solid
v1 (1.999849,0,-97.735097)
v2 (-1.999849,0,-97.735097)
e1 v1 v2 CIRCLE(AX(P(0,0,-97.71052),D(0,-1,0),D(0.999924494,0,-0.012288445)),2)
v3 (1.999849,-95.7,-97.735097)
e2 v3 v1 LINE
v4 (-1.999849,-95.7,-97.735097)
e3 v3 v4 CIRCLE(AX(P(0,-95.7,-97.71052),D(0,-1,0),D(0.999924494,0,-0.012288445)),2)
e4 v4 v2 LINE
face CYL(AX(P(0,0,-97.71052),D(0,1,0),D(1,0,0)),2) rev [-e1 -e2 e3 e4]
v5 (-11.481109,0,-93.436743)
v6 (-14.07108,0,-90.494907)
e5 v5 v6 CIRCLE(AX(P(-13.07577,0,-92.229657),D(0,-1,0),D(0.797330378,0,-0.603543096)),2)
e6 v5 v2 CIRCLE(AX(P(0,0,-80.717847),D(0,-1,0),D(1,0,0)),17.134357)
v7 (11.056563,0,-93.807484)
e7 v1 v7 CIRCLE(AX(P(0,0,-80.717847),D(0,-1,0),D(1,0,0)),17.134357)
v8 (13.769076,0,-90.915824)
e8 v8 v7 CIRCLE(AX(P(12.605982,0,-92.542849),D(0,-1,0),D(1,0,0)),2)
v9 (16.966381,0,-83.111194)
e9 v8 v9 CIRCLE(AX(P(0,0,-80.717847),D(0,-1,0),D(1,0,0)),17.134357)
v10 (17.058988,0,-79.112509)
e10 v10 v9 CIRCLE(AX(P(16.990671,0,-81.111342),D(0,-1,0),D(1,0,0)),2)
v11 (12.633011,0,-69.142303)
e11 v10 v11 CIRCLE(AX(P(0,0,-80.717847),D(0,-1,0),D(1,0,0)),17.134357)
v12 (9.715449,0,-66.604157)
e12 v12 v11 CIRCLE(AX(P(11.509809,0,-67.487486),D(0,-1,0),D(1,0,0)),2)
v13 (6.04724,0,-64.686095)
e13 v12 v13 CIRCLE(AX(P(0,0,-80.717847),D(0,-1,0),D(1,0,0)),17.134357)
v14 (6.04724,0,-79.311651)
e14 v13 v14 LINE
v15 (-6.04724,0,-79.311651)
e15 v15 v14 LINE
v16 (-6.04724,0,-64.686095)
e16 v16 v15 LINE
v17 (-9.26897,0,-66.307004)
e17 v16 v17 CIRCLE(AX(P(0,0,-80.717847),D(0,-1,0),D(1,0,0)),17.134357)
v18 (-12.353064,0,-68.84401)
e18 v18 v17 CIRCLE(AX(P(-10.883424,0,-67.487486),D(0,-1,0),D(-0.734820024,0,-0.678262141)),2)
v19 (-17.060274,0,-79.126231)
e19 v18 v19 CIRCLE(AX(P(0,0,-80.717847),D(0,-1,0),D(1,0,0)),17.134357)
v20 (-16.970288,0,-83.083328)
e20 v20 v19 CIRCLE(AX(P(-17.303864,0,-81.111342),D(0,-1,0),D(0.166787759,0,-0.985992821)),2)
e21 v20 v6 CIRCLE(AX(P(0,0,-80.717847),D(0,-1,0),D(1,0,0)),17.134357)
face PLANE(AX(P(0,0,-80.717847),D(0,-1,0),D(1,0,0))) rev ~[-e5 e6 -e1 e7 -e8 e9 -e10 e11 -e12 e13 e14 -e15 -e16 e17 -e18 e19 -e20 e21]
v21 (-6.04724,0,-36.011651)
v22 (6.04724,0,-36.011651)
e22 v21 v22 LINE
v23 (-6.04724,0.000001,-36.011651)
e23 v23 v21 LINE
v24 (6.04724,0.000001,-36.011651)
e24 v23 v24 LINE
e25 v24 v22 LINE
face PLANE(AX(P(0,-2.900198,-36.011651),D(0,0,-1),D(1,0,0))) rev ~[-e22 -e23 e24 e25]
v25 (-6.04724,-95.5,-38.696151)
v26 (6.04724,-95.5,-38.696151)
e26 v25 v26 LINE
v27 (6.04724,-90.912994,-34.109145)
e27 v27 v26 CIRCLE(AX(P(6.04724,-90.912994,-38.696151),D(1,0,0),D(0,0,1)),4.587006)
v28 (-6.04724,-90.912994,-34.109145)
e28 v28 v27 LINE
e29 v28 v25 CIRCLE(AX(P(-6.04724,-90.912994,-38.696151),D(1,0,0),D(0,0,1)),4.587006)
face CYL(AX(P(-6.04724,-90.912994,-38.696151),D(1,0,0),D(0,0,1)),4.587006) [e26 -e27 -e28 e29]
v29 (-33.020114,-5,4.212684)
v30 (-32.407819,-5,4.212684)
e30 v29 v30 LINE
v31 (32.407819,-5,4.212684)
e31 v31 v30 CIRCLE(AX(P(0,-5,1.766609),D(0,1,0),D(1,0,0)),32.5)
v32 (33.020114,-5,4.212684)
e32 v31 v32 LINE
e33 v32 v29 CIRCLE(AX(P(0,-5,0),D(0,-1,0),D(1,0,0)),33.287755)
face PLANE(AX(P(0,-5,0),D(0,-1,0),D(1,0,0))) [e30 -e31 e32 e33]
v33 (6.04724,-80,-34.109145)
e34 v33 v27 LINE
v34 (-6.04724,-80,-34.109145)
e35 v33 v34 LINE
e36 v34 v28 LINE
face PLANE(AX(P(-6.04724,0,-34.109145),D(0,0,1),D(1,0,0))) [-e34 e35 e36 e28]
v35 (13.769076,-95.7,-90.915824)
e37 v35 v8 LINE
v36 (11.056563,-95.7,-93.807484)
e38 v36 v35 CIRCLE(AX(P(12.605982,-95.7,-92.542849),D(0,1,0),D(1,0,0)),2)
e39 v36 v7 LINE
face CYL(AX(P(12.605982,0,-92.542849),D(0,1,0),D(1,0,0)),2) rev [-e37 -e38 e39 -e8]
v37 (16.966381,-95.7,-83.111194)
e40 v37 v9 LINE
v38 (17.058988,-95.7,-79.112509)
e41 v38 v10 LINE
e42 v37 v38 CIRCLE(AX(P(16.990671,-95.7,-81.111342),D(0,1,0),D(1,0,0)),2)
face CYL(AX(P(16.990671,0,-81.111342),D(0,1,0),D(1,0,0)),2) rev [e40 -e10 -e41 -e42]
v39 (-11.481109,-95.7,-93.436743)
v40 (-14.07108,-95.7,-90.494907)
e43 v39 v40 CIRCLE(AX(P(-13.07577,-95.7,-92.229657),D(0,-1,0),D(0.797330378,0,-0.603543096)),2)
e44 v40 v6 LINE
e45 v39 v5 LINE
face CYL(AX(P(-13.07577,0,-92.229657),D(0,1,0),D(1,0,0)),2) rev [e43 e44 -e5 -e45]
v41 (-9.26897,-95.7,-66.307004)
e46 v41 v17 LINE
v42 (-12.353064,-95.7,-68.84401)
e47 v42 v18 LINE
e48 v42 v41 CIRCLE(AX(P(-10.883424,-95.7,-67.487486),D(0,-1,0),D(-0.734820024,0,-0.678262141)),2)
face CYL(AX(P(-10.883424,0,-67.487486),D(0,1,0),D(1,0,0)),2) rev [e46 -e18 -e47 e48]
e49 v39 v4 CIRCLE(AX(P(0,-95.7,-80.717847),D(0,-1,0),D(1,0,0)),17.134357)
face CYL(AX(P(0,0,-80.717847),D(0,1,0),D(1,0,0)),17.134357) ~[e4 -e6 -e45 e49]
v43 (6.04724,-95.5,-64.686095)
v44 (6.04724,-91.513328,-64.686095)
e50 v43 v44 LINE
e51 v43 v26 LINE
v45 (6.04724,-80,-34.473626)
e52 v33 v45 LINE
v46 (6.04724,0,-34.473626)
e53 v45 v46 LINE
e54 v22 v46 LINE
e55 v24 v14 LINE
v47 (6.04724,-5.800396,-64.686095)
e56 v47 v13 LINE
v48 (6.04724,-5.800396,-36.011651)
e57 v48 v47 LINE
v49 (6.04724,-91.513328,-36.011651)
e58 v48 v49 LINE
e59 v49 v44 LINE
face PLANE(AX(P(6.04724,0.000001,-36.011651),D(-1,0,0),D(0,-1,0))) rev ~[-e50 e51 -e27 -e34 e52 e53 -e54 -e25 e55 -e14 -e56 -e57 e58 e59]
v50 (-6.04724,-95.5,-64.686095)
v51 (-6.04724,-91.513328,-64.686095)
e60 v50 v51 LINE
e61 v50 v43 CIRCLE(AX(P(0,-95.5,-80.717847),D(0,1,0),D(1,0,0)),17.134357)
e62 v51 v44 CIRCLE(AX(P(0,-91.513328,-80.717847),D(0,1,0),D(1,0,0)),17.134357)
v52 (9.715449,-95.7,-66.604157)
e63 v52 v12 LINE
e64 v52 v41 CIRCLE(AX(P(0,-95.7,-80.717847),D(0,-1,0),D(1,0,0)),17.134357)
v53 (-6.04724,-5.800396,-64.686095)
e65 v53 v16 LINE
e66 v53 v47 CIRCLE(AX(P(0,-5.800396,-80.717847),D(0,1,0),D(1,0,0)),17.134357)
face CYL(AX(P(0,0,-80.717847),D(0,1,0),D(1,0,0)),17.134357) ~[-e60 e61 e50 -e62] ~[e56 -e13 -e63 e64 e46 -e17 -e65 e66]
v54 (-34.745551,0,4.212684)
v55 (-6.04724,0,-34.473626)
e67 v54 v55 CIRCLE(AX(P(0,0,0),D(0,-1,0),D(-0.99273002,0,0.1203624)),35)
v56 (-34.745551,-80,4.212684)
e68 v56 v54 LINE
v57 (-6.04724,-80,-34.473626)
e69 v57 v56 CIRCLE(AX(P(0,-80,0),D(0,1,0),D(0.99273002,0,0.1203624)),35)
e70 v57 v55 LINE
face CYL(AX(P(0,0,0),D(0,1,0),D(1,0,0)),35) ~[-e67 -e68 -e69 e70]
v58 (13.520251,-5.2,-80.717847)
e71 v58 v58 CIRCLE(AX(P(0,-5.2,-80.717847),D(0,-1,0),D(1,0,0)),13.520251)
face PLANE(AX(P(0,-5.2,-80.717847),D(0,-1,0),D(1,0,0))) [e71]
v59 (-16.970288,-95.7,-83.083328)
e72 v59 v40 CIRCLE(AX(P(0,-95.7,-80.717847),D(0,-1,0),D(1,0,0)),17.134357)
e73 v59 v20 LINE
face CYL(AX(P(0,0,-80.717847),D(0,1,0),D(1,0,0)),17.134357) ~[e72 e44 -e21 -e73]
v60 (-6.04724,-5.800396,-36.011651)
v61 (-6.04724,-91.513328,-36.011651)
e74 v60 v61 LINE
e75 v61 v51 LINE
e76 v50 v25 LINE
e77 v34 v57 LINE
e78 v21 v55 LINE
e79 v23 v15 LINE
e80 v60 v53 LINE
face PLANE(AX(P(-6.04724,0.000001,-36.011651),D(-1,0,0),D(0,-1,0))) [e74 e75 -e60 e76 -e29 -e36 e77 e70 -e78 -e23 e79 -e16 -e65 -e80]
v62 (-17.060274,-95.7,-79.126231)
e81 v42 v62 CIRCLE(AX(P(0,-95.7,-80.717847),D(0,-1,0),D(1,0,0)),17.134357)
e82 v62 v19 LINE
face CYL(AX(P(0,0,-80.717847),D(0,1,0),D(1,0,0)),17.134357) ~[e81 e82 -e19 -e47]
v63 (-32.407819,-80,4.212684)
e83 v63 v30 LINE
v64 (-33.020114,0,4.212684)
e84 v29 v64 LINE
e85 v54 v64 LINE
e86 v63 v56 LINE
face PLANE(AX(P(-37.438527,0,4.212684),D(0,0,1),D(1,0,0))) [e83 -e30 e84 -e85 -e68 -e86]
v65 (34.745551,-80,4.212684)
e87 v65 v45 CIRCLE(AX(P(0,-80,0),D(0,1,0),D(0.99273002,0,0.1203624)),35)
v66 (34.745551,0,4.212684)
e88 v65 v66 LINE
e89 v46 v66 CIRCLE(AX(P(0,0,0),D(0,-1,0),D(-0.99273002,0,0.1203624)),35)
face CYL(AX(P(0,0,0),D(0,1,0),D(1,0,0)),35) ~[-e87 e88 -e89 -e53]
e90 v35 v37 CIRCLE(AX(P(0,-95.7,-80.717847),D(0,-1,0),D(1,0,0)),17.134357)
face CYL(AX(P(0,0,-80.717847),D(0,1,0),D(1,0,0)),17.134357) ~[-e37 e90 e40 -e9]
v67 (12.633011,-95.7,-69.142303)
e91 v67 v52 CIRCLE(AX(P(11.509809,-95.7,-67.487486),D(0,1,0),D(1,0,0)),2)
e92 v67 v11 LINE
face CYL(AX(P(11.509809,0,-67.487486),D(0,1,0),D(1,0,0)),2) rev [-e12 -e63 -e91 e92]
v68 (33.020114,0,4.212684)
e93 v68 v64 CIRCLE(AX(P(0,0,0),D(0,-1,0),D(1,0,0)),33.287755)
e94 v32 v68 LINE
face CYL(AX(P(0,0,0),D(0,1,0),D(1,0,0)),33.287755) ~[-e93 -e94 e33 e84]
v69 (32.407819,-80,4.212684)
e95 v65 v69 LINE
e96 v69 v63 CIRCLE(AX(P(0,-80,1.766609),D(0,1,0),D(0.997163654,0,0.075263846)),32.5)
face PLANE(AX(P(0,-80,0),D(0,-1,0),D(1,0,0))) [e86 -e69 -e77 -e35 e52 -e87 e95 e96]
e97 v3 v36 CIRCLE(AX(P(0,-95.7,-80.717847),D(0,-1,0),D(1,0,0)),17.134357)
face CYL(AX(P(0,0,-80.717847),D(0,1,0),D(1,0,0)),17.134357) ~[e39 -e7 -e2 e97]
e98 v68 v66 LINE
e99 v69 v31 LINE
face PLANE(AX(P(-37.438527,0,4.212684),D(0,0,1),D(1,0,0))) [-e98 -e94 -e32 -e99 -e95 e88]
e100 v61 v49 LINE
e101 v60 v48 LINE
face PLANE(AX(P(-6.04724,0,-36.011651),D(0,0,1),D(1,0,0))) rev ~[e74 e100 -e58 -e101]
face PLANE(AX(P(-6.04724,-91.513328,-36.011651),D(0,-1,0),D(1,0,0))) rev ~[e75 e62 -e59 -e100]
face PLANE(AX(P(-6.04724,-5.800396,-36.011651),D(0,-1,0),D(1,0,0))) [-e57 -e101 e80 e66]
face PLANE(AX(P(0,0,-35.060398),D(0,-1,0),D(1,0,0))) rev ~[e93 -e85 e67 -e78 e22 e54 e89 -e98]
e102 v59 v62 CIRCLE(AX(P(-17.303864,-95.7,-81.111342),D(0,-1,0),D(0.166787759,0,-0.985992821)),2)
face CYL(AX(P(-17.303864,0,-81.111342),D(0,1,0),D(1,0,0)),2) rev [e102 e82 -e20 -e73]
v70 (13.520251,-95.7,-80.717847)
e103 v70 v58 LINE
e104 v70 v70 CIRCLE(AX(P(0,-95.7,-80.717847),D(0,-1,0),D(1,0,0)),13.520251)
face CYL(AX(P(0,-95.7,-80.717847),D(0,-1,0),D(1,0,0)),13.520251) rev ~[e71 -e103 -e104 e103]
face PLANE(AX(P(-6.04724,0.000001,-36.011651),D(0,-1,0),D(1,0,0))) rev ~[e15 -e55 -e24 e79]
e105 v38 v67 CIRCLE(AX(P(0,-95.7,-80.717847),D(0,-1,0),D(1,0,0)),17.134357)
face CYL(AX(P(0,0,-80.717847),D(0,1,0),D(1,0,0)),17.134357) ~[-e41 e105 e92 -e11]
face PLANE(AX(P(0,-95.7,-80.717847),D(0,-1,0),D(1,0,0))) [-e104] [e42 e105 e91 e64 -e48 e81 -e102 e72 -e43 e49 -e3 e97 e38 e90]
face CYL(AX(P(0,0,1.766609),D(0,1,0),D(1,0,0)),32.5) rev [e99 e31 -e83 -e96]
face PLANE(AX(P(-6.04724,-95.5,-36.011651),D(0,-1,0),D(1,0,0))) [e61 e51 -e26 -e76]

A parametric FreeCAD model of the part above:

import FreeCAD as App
import Part
import Sketcher

V = App.Vector


def edges_at(feature, points):
    """Names of the edges that pass closest to the given points."""
    edges = feature.Shape.Edges
    near = lambda p: min(range(len(edges)), key=lambda i: edges[i].distToShape(Part.Vertex(*p))[0])
    return sorted({f"Edge{near(p) + 1}" for p in points})

doc = App.newDocument("Part")
body = doc.addObject("PartDesign::Body", "Body")

# Sketch on XZ plane
sketch1 = body.newObject("Sketcher::SketchObject", "Sketch")
sketch1.AttachmentSupport = (doc.getObject("XZ_Plane"), [""])
sketch1.MapMode = "FlatFace"
sketch1.addGeometry(Part.Circle(V(0, 0, 0), V(0, 0, 1), 35), False)
sketch1.addConstraint([
    Sketcher.Constraint("Coincident", 0, 3, -1, 1),
    Sketcher.Constraint("Diameter", 0, 70.0),
])
pad1 = body.newObject("PartDesign::Pad", "Pad")
pad1.Profile = sketch1
pad1.Length = 80

# Sketch on XZ plane
sketch2 = body.newObject("Sketcher::SketchObject", "Sketch001")
sketch2.AttachmentSupport = (doc.getObject("XZ_Plane"), [""])
sketch2.MapMode = "FlatFace"
sketch2.addGeometry(Part.Circle(V(0, 2, 0), V(0, 0, 1), 32), False)
sketch2.addConstraint([
    Sketcher.Constraint("PointOnObject", 0, 3, -2),
    Sketcher.Constraint("Diameter", 0, 65.0),
    Sketcher.Constraint("DistanceY", -1, 1, 0, 3, 1.766609),
])
pocket1 = body.newObject("PartDesign::Pocket", "Pocket")
pocket1.Profile = sketch2
pocket1.Length = 210
pocket1.Reversed = True

# Sketch on XZ plane
sketch3 = body.newObject("Sketcher::SketchObject", "Sketch002")
sketch3.AttachmentSupport = (doc.getObject("XZ_Plane"), [""])
sketch3.MapMode = "FlatFace"
sketch3.addGeometry([
    Part.LineSegment(V(-54, 18, 0), V(-37, 4, 0)),  # 0
    Part.LineSegment(V(-37, 4, 0), V(54, 4, 0)),  # 1
    Part.LineSegment(V(54, 4, 0), V(40, 43, 0)),  # 2
    Part.LineSegment(V(40, 43, 0), V(-38, 50, 0)),  # 3
    Part.LineSegment(V(-38, 50, 0), V(-54, 18, 0)),  # 4
], False)
sketch3.addConstraint([
    Sketcher.Constraint("Coincident", 0, 2, 1, 1),
    Sketcher.Constraint("Coincident", 1, 2, 2, 1),
    Sketcher.Constraint("Coincident", 2, 2, 3, 1),
    Sketcher.Constraint("Coincident", 3, 2, 4, 1),
    Sketcher.Constraint("Coincident", 4, 2, 0, 1),
    Sketcher.Constraint("Horizontal", 1),
    Sketcher.Constraint("DistanceY", -1, 1, 4, 2, 17.530199),
    Sketcher.Constraint("Distance", 3, 78.027209),
    Sketcher.Constraint("DistanceX", 1, 1, 1, 2, 91.048323),
    Sketcher.Constraint("DistanceX", -1, 1, 2, 2, 40.020492),
    Sketcher.Constraint("DistanceX", 4, 2, -1, 1, 54.289259),
    Sketcher.Constraint("DistanceX", 0, 2, 2, 2, 77.459019),
    Sketcher.Constraint("DistanceY", 0, 2, 3, 2, 45.524159),
    Sketcher.Constraint("DistanceY", 2, 2, 3, 2, 6.794651),
    Sketcher.Constraint("Distance", 0, 21.477974),
])
pocket2 = body.newObject("PartDesign::Pocket", "Pocket001")
pocket2.Profile = sketch3
pocket2.Length = 105.2
pocket2.Reversed = True

# Sketch on XZ plane
sketch4 = body.newObject("Sketcher::SketchObject", "Sketch003")
sketch4.AttachmentSupport = (doc.getObject("XZ_Plane"), [""])
sketch4.MapMode = "FlatFace"
sketch4.addGeometry([
    Part.LineSegment(V(-6, -34.1, 0), V(-6, -36, 0)),
    Part.LineSegment(V(-6, -36, 0), V(6, -36, 0)),
    Part.LineSegment(V(6, -36, 0), V(6, -34.1, 0)),
    Part.LineSegment(V(6, -34.1, 0), V(-6, -34.1, 0)),
], False)
sketch4.addConstraint([
    Sketcher.Constraint("Coincident", 0, 2, 1, 1),
    Sketcher.Constraint("Coincident", 1, 2, 2, 1),
    Sketcher.Constraint("Coincident", 2, 2, 3, 1),
    Sketcher.Constraint("Coincident", 3, 2, 0, 1),
    Sketcher.Constraint("Vertical", 0),
    Sketcher.Constraint("Horizontal", 1),
    Sketcher.Constraint("Vertical", 2),
    Sketcher.Constraint("Horizontal", 3),
    Sketcher.Constraint("DistanceX", 1, 1, 1, 2, 12.09448),
    Sketcher.Constraint("DistanceY", 0, 2, 0, 1, 1.902506),
    Sketcher.Constraint("DistanceX", 0, 2, -1, 1, 6.04724),
    Sketcher.Constraint("DistanceY", 0, 2, -1, 1, 36.011651),
])
pad2 = body.newObject("PartDesign::Pad", "Pad001")
pad2.Profile = sketch4
pad2.Length = 95.5

# Sketch on XZ plane
sketch5 = body.newObject("Sketcher::SketchObject", "Sketch004")
sketch5.AttachmentSupport = (doc.getObject("XZ_Plane"), [""])
sketch5.MapMode = "FlatFace"
sketch5.addGeometry(Part.Circle(V(0, 0, 0), V(0, 0, 1), 33), False)
sketch5.addConstraint([
    Sketcher.Constraint("Coincident", 0, 3, -1, 1),
    Sketcher.Constraint("Diameter", 0, 66.57551),
])
pad3 = body.newObject("PartDesign::Pad", "Pad002")
pad3.Profile = sketch5
pad3.Length = 5

# Sketch on XY plane
sketch6 = body.newObject("Sketcher::SketchObject", "Sketch005")
sketch6.AttachmentSupport = (doc.getObject("XY_Plane"), [""])
sketch6.MapMode = "FlatFace"
sketch6.AttachmentOffset = App.Placement(V(0, 0, -36.011651), App.Rotation())
sketch6.addGeometry([
    Part.LineSegment(V(-6, -95.5, 0), V(-6, -91.5, 0)),
    Part.LineSegment(V(-6, -91.5, 0), V(6, -91.5, 0)),
    Part.LineSegment(V(6, -91.5, 0), V(6, -95.5, 0)),
    Part.LineSegment(V(6, -95.5, 0), V(-6, -95.5, 0)),
], False)
sketch6.addConstraint([
    Sketcher.Constraint("Coincident", 0, 2, 1, 1),
    Sketcher.Constraint("Coincident", 1, 2, 2, 1),
    Sketcher.Constraint("Coincident", 2, 2, 3, 1),
    Sketcher.Constraint("Coincident", 3, 2, 0, 1),
    Sketcher.Constraint("Vertical", 0),
    Sketcher.Constraint("Horizontal", 1),
    Sketcher.Constraint("Vertical", 2),
    Sketcher.Constraint("Horizontal", 3),
    Sketcher.Constraint("DistanceY", 2, 2, -1, 1, 95.5),
    Sketcher.Constraint("DistanceX", 1, 1, 1, 2, 12.09448),
    Sketcher.Constraint("DistanceY", 0, 1, 0, 2, 3.986672),
    Sketcher.Constraint("DistanceX", 0, 2, -1, 1, 6.04724),
])
pad4 = body.newObject("PartDesign::Pad", "Pad003")
pad4.Profile = sketch6
pad4.Length = 40
pad4.Reversed = True
doc.recompute()

fillet = body.newObject("PartDesign::Fillet", "Fillet")
fillet.Base = (pad4, edges_at(pad4, [(0, -95.5, -34.109)]))
fillet.Radius = 4.587006

# Sketch on XZ plane
sketch7 = body.newObject("Sketcher::SketchObject", "Sketch006")
sketch7.AttachmentSupport = (doc.getObject("XZ_Plane"), [""])
sketch7.MapMode = "FlatFace"
sketch7.addGeometry(Part.Circle(V(0, -81, 0), V(0, 0, 1), 17), False)
sketch7.addConstraint([
    Sketcher.Constraint("PointOnObject", 0, 3, -2),
    Sketcher.Constraint("Diameter", 0, 34.268714),
    Sketcher.Constraint("DistanceY", 0, 3, -1, 1, 80.717847),
])
pad5 = body.newObject("PartDesign::Pad", "Pad004")
pad5.Profile = sketch7
pad5.Length = 95.7

# Sketch on XY plane
sketch8 = body.newObject("Sketcher::SketchObject", "Sketch007")
sketch8.AttachmentSupport = (doc.getObject("XY_Plane"), [""])
sketch8.MapMode = "FlatFace"
sketch8.AttachmentOffset = App.Placement(V(0, 0, -36.011651), App.Rotation())
sketch8.addGeometry([
    Part.LineSegment(V(-6, -6, 0), V(-6, 0, 0)),
    Part.LineSegment(V(-6, 0, 0), V(6, 0, 0)),
    Part.LineSegment(V(6, 0, 0), V(6, -6, 0)),
    Part.LineSegment(V(6, -6, 0), V(-6, -6, 0)),
], False)
sketch8.addConstraint([
    Sketcher.Constraint("Coincident", 0, 2, 1, 1),
    Sketcher.Constraint("Coincident", 1, 2, 2, 1),
    Sketcher.Constraint("Coincident", 2, 2, 3, 1),
    Sketcher.Constraint("Coincident", 3, 2, 0, 1),
    Sketcher.Constraint("Vertical", 0),
    Sketcher.Constraint("Horizontal", 1),
    Sketcher.Constraint("Vertical", 2),
    Sketcher.Constraint("Horizontal", 3),
    Sketcher.Constraint("Symmetric", 0, 2, 1, 2, -1, 1),
    Sketcher.Constraint("DistanceX", 1, 1, 1, 2, 12.09448),
    Sketcher.Constraint("DistanceY", 0, 1, 0, 2, 5.800397),
])
pad6 = body.newObject("PartDesign::Pad", "Pad005")
pad6.Profile = sketch8
pad6.Length = 43.3
pad6.Reversed = True

# Sketch on XZ plane
sketch9 = body.newObject("Sketcher::SketchObject", "Sketch008")
sketch9.AttachmentSupport = (doc.getObject("XZ_Plane"), [""])
sketch9.MapMode = "FlatFace"
sketch9.addGeometry([
    Part.Circle(V(-17.3, -81.1, 0), V(0, 0, 1), 2),  # 0
    Part.Circle(V(17, -81.1, 0), V(0, 0, 1), 2),  # 1
    Part.Circle(V(0, -97.7, 0), V(0, 0, 1), 2),  # 2
    Part.Circle(V(-13.1, -92.2, 0), V(0, 0, 1), 2),  # 3
    Part.Circle(V(12.6, -92.5, 0), V(0, 0, 1), 2),  # 4
    Part.Circle(V(11.5, -67.5, 0), V(0, 0, 1), 2),  # 5
    Part.Circle(V(-10.9, -67.5, 0), V(0, 0, 1), 2),  # 6
], False)
sketch9.addConstraint([
    Sketcher.Constraint("Equal", 0, 1),
    Sketcher.Constraint("Equal", 1, 2),
    Sketcher.Constraint("Equal", 2, 3),
    Sketcher.Constraint("Equal", 3, 4),
    Sketcher.Constraint("Equal", 4, 5),
    Sketcher.Constraint("Equal", 5, 6),
    Sketcher.Constraint("PointOnObject", 2, 3, -2),
    Sketcher.Constraint("Horizontal", 0, 3, 1, 3),
    Sketcher.Constraint("Horizontal", 5, 3, 6, 3),
    Sketcher.Constraint("Diameter", 0, 4.0),
    Sketcher.Constraint("DistanceY", 0, 3, -1, 1, 81.111342),
    Sketcher.Constraint("DistanceX", -1, 1, 1, 3, 16.990671),
    Sketcher.Constraint("DistanceY", 2, 3, -1, 1, 97.71052),
    Sketcher.Constraint("DistanceX", 3, 3, -1, 1, 13.07577),
    Sketcher.Constraint("DistanceX", -1, 1, 4, 3, 12.605982),
    Sketcher.Constraint("DistanceY", 4, 3, -1, 1, 92.542849),
    Sketcher.Constraint("DistanceX", -1, 1, 5, 3, 11.509809),
    Sketcher.Constraint("DistanceY", 3, 3, 5, 3, 24.742171),
    Sketcher.Constraint("DistanceX", 0, 3, 6, 3, 6.42044),
    Sketcher.Constraint("DistanceX", 0, 3, -1, 1, 17.303864),
    Sketcher.Constraint("DistanceY", 3, 3, -1, 1, 92.229657),
])
pocket3 = body.newObject("PartDesign::Pocket", "Pocket002")
pocket3.Profile = sketch9
pocket3.Length = 126
pocket3.Reversed = True

# Sketch on XZ plane
sketch10 = body.newObject("Sketcher::SketchObject", "Sketch009")
sketch10.AttachmentSupport = (doc.getObject("XZ_Plane"), [""])
sketch10.MapMode = "FlatFace"
sketch10.AttachmentOffset = App.Placement(V(0, 0, 95.7), App.Rotation())
sketch10.addGeometry(Part.Circle(V(0, -81, 0), V(0, 0, 1), 14), False)
sketch10.addConstraint([
    Sketcher.Constraint("PointOnObject", 0, 3, -2),
    Sketcher.Constraint("Diameter", 0, 27.040502),
    Sketcher.Constraint("DistanceY", 0, 3, -1, 1, 80.717847),
])
pocket4 = body.newObject("PartDesign::Pocket", "Pocket003")
pocket4.Profile = sketch10
pocket4.Length = 90.5

doc.recompute()
